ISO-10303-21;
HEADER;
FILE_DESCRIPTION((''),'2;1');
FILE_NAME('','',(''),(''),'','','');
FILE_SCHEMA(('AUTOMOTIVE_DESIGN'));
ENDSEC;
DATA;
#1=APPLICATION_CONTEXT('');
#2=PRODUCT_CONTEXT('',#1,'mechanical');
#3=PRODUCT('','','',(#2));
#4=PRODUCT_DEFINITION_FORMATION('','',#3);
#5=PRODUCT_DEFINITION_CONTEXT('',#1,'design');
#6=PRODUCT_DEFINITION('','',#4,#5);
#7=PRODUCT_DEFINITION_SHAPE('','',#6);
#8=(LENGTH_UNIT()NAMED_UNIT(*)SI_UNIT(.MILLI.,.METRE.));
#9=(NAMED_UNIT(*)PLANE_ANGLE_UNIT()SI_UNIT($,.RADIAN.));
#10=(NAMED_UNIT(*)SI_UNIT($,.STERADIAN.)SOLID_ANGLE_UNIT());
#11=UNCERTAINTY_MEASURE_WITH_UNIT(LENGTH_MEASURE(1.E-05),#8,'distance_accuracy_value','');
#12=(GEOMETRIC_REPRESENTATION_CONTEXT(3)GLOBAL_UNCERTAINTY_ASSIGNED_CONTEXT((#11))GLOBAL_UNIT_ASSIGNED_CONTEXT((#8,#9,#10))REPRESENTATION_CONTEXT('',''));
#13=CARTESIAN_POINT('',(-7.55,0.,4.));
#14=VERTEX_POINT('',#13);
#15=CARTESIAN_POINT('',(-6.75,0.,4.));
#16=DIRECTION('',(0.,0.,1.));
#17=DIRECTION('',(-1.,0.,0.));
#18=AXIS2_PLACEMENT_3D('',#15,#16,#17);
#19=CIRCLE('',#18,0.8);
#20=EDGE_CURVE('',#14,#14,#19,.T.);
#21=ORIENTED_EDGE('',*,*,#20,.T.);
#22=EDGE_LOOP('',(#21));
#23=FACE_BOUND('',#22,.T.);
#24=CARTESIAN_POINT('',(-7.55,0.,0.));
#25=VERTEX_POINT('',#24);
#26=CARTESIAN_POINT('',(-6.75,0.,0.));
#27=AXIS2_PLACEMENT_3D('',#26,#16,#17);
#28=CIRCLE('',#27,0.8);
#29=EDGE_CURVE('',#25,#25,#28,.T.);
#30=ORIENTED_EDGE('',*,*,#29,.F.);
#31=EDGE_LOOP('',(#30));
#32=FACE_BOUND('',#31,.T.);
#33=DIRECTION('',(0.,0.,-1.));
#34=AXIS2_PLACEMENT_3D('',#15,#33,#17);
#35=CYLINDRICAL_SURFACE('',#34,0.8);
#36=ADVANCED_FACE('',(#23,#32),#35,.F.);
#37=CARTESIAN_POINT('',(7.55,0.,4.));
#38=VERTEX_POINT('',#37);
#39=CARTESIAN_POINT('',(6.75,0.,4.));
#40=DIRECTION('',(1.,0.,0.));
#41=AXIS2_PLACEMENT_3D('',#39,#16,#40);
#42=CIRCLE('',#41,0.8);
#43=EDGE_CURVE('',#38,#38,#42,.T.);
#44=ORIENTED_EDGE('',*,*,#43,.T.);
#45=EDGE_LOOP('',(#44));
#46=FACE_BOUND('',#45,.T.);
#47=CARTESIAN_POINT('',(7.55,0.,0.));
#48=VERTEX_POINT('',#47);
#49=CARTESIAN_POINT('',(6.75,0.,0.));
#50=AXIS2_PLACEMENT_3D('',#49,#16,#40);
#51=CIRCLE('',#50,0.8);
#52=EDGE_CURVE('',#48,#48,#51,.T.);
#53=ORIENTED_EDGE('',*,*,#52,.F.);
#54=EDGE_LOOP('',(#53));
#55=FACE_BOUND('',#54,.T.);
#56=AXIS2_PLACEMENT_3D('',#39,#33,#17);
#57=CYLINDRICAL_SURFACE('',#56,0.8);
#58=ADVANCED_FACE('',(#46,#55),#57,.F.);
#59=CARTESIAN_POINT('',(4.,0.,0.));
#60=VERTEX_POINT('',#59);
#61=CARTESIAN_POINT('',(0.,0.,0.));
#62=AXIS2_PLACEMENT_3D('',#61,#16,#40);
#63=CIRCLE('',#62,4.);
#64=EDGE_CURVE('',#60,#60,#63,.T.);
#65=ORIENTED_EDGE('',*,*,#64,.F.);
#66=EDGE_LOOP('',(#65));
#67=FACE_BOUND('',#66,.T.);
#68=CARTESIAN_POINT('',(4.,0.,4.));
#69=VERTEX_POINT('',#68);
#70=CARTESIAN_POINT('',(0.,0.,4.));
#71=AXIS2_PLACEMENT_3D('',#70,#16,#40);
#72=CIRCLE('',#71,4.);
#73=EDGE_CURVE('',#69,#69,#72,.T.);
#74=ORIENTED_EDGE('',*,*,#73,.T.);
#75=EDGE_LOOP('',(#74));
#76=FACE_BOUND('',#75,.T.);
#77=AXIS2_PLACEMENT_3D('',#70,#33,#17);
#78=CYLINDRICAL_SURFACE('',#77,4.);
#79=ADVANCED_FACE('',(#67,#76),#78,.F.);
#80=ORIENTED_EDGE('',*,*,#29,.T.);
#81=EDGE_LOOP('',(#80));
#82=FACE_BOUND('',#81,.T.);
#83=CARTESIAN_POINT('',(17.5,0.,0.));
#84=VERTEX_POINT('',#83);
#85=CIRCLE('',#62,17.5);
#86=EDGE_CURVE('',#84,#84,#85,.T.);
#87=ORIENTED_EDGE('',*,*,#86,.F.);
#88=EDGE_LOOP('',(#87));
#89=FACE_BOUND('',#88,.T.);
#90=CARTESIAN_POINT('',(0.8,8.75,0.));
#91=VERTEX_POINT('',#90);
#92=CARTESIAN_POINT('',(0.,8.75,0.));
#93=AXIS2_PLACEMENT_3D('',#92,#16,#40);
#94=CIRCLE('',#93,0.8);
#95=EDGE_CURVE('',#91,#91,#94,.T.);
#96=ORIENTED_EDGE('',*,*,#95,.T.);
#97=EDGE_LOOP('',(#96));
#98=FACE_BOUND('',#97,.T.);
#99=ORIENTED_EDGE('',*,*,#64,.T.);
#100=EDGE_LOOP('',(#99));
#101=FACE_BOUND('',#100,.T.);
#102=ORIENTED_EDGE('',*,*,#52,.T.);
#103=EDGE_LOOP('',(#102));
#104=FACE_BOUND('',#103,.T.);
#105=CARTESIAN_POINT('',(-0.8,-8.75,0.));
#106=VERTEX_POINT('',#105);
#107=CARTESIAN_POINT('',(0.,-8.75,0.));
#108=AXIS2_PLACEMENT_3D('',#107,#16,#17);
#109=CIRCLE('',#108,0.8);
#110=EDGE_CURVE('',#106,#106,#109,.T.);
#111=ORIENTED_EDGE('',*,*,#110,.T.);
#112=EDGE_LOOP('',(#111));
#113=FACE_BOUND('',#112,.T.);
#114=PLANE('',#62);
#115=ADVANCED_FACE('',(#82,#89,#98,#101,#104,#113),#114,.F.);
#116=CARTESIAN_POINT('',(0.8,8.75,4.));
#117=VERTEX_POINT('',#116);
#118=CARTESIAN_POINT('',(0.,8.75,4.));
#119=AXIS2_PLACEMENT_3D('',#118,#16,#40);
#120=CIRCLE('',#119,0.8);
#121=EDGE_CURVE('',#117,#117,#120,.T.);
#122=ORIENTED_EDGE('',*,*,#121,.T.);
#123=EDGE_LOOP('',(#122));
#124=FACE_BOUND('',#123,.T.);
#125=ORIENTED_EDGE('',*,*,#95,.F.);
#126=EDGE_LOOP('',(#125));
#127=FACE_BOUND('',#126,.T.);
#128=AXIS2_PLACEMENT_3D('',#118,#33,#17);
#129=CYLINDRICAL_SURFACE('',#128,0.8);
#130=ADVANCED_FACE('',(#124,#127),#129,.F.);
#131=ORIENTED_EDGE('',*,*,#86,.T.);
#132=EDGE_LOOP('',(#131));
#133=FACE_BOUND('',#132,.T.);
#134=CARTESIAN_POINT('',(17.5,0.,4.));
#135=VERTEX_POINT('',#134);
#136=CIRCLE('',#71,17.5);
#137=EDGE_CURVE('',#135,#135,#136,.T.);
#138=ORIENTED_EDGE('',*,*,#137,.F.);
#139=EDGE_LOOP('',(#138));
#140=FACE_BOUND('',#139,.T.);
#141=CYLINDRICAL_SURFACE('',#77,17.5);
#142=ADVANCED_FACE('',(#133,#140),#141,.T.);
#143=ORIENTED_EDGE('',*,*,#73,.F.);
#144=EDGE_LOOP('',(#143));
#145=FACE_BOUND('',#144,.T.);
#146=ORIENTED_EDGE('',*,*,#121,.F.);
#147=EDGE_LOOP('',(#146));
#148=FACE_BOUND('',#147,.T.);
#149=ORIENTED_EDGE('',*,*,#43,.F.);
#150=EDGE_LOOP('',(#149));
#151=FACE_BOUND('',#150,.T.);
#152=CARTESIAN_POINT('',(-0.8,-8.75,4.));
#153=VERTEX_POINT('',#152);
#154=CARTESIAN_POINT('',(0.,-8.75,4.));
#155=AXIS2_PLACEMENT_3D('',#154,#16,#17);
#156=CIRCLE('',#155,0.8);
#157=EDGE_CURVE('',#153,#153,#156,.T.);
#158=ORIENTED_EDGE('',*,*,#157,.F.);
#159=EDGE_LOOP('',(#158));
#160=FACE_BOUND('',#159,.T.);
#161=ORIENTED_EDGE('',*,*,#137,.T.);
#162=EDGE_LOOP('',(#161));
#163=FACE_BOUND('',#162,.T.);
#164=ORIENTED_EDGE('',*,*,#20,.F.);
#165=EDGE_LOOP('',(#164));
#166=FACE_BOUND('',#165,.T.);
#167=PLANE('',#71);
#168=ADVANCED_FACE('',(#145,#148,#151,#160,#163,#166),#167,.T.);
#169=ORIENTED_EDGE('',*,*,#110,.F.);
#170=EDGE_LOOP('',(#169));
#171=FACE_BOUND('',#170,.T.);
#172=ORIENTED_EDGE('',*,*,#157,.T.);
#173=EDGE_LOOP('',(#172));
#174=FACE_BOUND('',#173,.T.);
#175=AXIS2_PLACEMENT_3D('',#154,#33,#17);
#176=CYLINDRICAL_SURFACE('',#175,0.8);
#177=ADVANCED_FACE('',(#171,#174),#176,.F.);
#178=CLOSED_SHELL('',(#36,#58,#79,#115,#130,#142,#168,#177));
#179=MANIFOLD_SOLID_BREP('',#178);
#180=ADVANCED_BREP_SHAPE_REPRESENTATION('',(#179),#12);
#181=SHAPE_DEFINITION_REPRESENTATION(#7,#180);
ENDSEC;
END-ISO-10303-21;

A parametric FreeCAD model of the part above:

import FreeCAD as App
import Part
import Sketcher

V = App.Vector
Q = App.Units.Quantity

doc = App.newDocument("Part")
body = doc.addObject("PartDesign::Body", "Body")

# Sketch on XY plane
sketch1 = body.newObject("Sketcher::SketchObject", "Sketch")
sketch1.AttachmentSupport = (doc.getObject("XY_Plane"), [""])
sketch1.MapMode = "FlatFace"
sketch1.addGeometry([
    Part.Circle(V(0, 0, 0), V(0, 0, 1), 17.5),  # 0
    Part.Circle(V(-6.8, 0, 0), V(0, 0, 1), 0.8),  # 1
    Part.Circle(V(0, -8.8, 0), V(0, 0, 1), 0.8),  # 2
    Part.Circle(V(0, 0, 0), V(0, 0, 1), 4),  # 3
    Part.Circle(V(6.8, 0, 0), V(0, 0, 1), 0.8),  # 4
    Part.Circle(V(0, 8.8, 0), V(0, 0, 1), 0.8),  # 5
], False)
sketch1.addConstraint([
    Sketcher.Constraint("Coincident", 0, 3, -1, 1),
    Sketcher.Constraint("Coincident", 3, 3, -1, 1),
    Sketcher.Constraint("Equal", 1, 2),
    Sketcher.Constraint("Equal", 2, 4),
    Sketcher.Constraint("Equal", 4, 5),
    Sketcher.Constraint("Symmetric", 1, 3, 4, 3, -1, 1),
    Sketcher.Constraint("Symmetric", 2, 3, 5, 3, -1, 1),
    Sketcher.Constraint("PointOnObject", 1, 3, -1),
    Sketcher.Constraint("PointOnObject", 2, 3, -2),
    Sketcher.Constraint("Diameter", 0, Q("35 mm")),
    Sketcher.Constraint("Diameter", 3, Q("8 mm")),
    Sketcher.Constraint("Diameter", 1, Q("1.6 mm")),
    Sketcher.Constraint("DistanceX", 1, 3, 4, 3, Q("13.5 mm")),
    Sketcher.Constraint("DistanceY", 2, 3, 5, 3, Q("17.5 mm")),
])
pad1 = body.newObject("PartDesign::Pad", "Pad")
pad1.Profile = sketch1
pad1.Length = 4

doc.recompute()
